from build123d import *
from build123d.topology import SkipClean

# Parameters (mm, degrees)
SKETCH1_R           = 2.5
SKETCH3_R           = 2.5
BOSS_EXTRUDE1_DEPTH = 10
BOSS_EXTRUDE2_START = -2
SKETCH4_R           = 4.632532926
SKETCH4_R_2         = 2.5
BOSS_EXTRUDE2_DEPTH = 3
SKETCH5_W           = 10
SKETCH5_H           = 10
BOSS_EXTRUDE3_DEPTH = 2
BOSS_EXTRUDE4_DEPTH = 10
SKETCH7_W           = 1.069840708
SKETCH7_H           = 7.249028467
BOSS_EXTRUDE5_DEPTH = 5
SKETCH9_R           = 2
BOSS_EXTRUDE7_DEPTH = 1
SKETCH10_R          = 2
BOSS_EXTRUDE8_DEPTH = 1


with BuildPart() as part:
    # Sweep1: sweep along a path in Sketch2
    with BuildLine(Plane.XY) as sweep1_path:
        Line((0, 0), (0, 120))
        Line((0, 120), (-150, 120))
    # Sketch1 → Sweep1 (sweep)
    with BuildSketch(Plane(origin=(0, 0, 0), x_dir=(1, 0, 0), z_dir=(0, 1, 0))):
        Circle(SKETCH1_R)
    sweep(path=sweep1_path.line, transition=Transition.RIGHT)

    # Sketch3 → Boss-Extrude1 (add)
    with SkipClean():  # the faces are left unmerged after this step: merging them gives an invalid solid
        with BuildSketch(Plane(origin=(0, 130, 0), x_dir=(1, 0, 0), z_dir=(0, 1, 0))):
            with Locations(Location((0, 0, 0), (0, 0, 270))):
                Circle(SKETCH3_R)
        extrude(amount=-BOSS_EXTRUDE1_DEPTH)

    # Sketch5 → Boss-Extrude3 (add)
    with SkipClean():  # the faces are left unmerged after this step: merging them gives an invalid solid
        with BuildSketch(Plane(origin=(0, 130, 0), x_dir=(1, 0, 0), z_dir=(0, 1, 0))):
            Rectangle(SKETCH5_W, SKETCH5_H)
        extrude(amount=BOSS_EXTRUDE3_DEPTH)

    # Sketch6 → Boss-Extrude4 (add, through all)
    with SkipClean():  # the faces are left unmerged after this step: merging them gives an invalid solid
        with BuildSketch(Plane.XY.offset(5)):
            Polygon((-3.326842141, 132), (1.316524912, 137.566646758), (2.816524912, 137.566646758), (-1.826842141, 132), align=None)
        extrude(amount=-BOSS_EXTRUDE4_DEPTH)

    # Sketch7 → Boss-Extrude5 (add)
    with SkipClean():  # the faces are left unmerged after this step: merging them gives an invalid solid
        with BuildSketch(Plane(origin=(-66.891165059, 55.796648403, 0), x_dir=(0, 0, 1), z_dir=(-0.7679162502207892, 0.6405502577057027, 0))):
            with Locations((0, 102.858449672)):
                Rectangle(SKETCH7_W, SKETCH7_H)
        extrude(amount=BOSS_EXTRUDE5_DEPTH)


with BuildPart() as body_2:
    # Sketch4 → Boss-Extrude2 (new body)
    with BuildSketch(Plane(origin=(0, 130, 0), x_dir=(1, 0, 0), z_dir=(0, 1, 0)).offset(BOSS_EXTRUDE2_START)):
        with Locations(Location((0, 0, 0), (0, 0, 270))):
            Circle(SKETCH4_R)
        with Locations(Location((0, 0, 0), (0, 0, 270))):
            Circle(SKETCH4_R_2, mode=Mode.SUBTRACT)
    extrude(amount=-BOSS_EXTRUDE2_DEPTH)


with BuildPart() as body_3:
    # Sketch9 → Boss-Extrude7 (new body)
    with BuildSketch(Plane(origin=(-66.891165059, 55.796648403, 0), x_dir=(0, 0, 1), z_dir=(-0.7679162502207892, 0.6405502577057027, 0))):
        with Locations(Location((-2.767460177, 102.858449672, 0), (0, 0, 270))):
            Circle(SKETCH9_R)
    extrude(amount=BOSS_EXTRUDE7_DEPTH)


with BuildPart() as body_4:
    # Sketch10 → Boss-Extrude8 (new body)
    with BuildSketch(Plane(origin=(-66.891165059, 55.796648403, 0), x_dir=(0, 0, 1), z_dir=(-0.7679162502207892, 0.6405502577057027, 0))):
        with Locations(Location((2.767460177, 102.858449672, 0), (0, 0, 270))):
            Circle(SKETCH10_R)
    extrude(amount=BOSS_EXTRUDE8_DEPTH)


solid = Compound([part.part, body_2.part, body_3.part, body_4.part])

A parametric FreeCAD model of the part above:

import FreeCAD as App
import Part
import Sketcher

V = App.Vector

doc = App.newDocument("Part")
params = doc.addObject("Spreadsheet::Sheet", "Params")
for row, (alias, value) in enumerate([
    ("sketch1_diameter", "5 mm"),
    ("sketch2_width", "150 mm"),
    ("sketch2_height", "120 mm"),
    ("sketch3_diameter", "5 mm"),
    ("pad1_length", "10 mm"),
    ("sketch4_width", "10 mm"),
    ("pad2_length", "2 mm"),
    ("sketch5_width", "1.5 mm"),
    ("pad3_length", "10 mm"),
    ("pad4_length", "5 mm"),
    ("sketch7_diameter", "5 mm"),
    ("pad5_length", "3 mm"),
    ("sketch8_diameter", "4 mm"),
    ("pad6_length", "1 mm"),
    ("sketch9_diameter", "4 mm"),
    ("pad7_length", "1 mm"),
], start=1):
    params.set(f"A{row}", alias)
    params.set(f"B{row}", "=" + value)
    params.setAlias(f"B{row}", alias)

body = doc.addObject("PartDesign::Body", "Body")

# Sketch on XZ plane
sketch1 = body.newObject("Sketcher::SketchObject", "Sketch")
sketch1.AttachmentSupport = (doc.getObject("XZ_Plane"), [""])
sketch1.MapMode = "FlatFace"
sketch1.addGeometry(Part.Circle(V(0, 0, 0), V(0, 0, 1), 2.5), False)
sketch1.addConstraint(Sketcher.Constraint("Coincident", 0, 3, -1, 1))
sketch1.addConstraint(Sketcher.Constraint("Diameter", 0, 5.0))
sketch1.setExpression("Constraints[1]", "Params.sketch1_diameter")

# Sketch on XY plane
sketch2 = body.newObject("Sketcher::SketchObject", "Sketch001")
sketch2.AttachmentSupport = (doc.getObject("XY_Plane"), [""])
sketch2.MapMode = "FlatFace"
sketch2.addGeometry(Part.LineSegment(V(0, 0, 0), V(0, 120, 0)), False)
sketch2.addGeometry(Part.LineSegment(V(0, 120, 0), V(-150, 120, 0)), False)
sketch2.addConstraint(Sketcher.Constraint("Coincident", 0, 2, 1, 1))
sketch2.addConstraint(Sketcher.Constraint("Vertical", 0))
sketch2.addConstraint(Sketcher.Constraint("Horizontal", 1))
sketch2.addConstraint(Sketcher.Constraint("Coincident", 0, 1, -1, 1))
sketch2.addConstraint(Sketcher.Constraint("DistanceX", 1, 2, 1, 1, 150.0))
sketch2.addConstraint(Sketcher.Constraint("DistanceY", 0, 1, 0, 2, 120.0))
sketch2.setExpression("Constraints[4]", "Params.sketch2_width")
sketch2.setExpression("Constraints[5]", "Params.sketch2_height")
doc.recompute()

additivepipe = body.newObject("PartDesign::AdditivePipe", "AdditivePipe")
additivepipe.Profile = sketch1
additivepipe.Spine = (sketch2, ["Edge1", "Edge2"])
additivepipe.Transition = "Right corner"

# Sketch on XZ plane
sketch3 = body.newObject("Sketcher::SketchObject", "Sketch002")
sketch3.AttachmentSupport = (doc.getObject("XZ_Plane"), [""])
sketch3.MapMode = "FlatFace"
sketch3.AttachmentOffset = App.Placement(V(0, 0, -130), App.Rotation())
sketch3.addGeometry(Part.Circle(V(0, 0, 0), V(0, 0, 1), 2.5), False)
sketch3.addConstraint(Sketcher.Constraint("Coincident", 0, 3, -1, 1))
sketch3.addConstraint(Sketcher.Constraint("Diameter", 0, 5.0))
sketch3.setExpression("Constraints[1]", "Params.sketch3_diameter")
pad1 = body.newObject("PartDesign::Pad", "Pad")
pad1.Profile = sketch3
pad1.setExpression("Length", "Params.pad1_length")

# Sketch on XZ plane
sketch4 = body.newObject("Sketcher::SketchObject", "Sketch003")
sketch4.AttachmentSupport = (doc.getObject("XZ_Plane"), [""])
sketch4.MapMode = "FlatFace"
sketch4.AttachmentOffset = App.Placement(V(0, 0, -130), App.Rotation())
sketch4.addGeometry(Part.LineSegment(V(-5, -5, 0), V(-5, 5, 0)), False)
sketch4.addGeometry(Part.LineSegment(V(-5, 5, 0), V(5, 5, 0)), False)
sketch4.addGeometry(Part.LineSegment(V(5, 5, 0), V(5, -5, 0)), False)
sketch4.addGeometry(Part.LineSegment(V(5, -5, 0), V(-5, -5, 0)), False)
sketch4.addConstraint(Sketcher.Constraint("Coincident", 0, 2, 1, 1))
sketch4.addConstraint(Sketcher.Constraint("Coincident", 1, 2, 2, 1))
sketch4.addConstraint(Sketcher.Constraint("Coincident", 2, 2, 3, 1))
sketch4.addConstraint(Sketcher.Constraint("Coincident", 3, 2, 0, 1))
sketch4.addConstraint(Sketcher.Constraint("Vertical", 0))
sketch4.addConstraint(Sketcher.Constraint("Horizontal", 1))
sketch4.addConstraint(Sketcher.Constraint("Vertical", 2))
sketch4.addConstraint(Sketcher.Constraint("Horizontal", 3))
sketch4.addConstraint(Sketcher.Constraint("Symmetric", 0, 2, 2, 2, -1, 1))
sketch4.addConstraint(Sketcher.Constraint("Equal", 3, 0))
sketch4.addConstraint(Sketcher.Constraint("DistanceX", 1, 1, 1, 2, 10.0))
sketch4.setExpression("Constraints[10]", "Params.sketch4_width")
pad2 = body.newObject("PartDesign::Pad", "Pad001")
pad2.Profile = sketch4
pad2.setExpression("Length", "Params.pad2_length")
pad2.Reversed = True

# Sketch on XY plane
sketch5 = body.newObject("Sketcher::SketchObject", "Sketch004")
sketch5.AttachmentSupport = (doc.getObject("XY_Plane"), [""])
sketch5.MapMode = "FlatFace"
sketch5.AttachmentOffset = App.Placement(V(0, 0, 5), App.Rotation())
sketch5.addGeometry(Part.LineSegment(V(1.316525, 137.566647, 0), V(-3.326842, 132, 0)), False)
sketch5.addGeometry(Part.LineSegment(V(-3.326842, 132, 0), V(-1.826842, 132, 0)), False)
sketch5.addGeometry(Part.LineSegment(V(-1.826842, 132, 0), V(2.816525, 137.566647, 0)), False)
sketch5.addGeometry(Part.LineSegment(V(2.816525, 137.566647, 0), V(1.316525, 137.566647, 0)), False)
sketch5.addConstraint(Sketcher.Constraint("Coincident", 0, 2, 1, 1))
sketch5.addConstraint(Sketcher.Constraint("Coincident", 1, 2, 2, 1))
sketch5.addConstraint(Sketcher.Constraint("Coincident", 2, 2, 3, 1))
sketch5.addConstraint(Sketcher.Constraint("Coincident", 3, 2, 0, 1))
sketch5.addConstraint(Sketcher.Constraint("Horizontal", 1))
sketch5.addConstraint(Sketcher.Constraint("Horizontal", 3))
sketch5.addConstraint(Sketcher.Constraint("Parallel", 0, 2))
sketch5.addConstraint(Sketcher.Constraint("DistanceX", 1, 1, 1, 2, 1.5))
sketch5.addConstraint(Sketcher.Constraint("DistanceY", -1, 1, 0, 2, 132.0))
sketch5.addConstraint(Sketcher.Constraint("Distance", 0, 7.249028))
sketch5.addConstraint(Sketcher.Constraint("DistanceX", 0, 2, -1, 1, 3.326842))
sketch5.addConstraint(Sketcher.Constraint("DistanceX", -1, 1, 2, 2, 2.816525))
sketch5.setExpression("Constraints[7]", "Params.sketch5_width")
pad3 = body.newObject("PartDesign::Pad", "Pad002")
pad3.Profile = sketch5
pad3.setExpression("Length", "Params.pad3_length")
pad3.Reversed = True

# Sketch on an angled plane
sketch6 = body.newObject("Sketcher::SketchObject", "Sketch005")
sketch6.Placement = App.Placement(V(-66.891165, 55.796648, 0), App.Rotation(V(0, 0, 1), V(0.640550258, 0.76791625, 0), V(-0.76791625, 0.640550258, 0), "ZXY"))
sketch6.addGeometry(Part.LineSegment(V(-0.53492, 106.482964, 0), V(-0.53492, 99.233935, 0)), False)
sketch6.addGeometry(Part.LineSegment(V(-0.53492, 99.233935, 0), V(0.53492, 99.233935, 0)), False)
sketch6.addGeometry(Part.LineSegment(V(0.53492, 99.233935, 0), V(0.53492, 106.482964, 0)), False)
sketch6.addGeometry(Part.LineSegment(V(0.53492, 106.482964, 0), V(-0.53492, 106.482964, 0)), False)
sketch6.addConstraint(Sketcher.Constraint("Coincident", 0, 2, 1, 1))
sketch6.addConstraint(Sketcher.Constraint("Coincident", 1, 2, 2, 1))
sketch6.addConstraint(Sketcher.Constraint("Coincident", 2, 2, 3, 1))
sketch6.addConstraint(Sketcher.Constraint("Coincident", 3, 2, 0, 1))
sketch6.addConstraint(Sketcher.Constraint("Vertical", 0))
sketch6.addConstraint(Sketcher.Constraint("Horizontal", 1))
sketch6.addConstraint(Sketcher.Constraint("Vertical", 2))
sketch6.addConstraint(Sketcher.Constraint("Horizontal", 3))
sketch6.addConstraint(Sketcher.Constraint("DistanceX", 1, 1, 1, 2, 1.069841))
sketch6.addConstraint(Sketcher.Constraint("DistanceY", 0, 2, 0, 1, 7.249028))
sketch6.addConstraint(Sketcher.Constraint("DistanceX", 0, 2, -1, 1, 0.53492))
sketch6.addConstraint(Sketcher.Constraint("DistanceY", -1, 1, 0, 2, 99.233935))
pad4 = body.newObject("PartDesign::Pad", "Pad003")
pad4.Profile = sketch6
pad4.setExpression("Length", "Params.pad4_length")
body2 = doc.addObject("PartDesign::Body", "Body001")

# Sketch on XZ plane
sketch7 = body2.newObject("Sketcher::SketchObject", "Sketch006")
sketch7.AttachmentSupport = (doc.getObject("XZ_Plane001"), [""])
sketch7.MapMode = "FlatFace"
sketch7.AttachmentOffset = App.Placement(V(0, 0, -128), App.Rotation())
sketch7.addGeometry(Part.Circle(V(0, 0, 0), V(0, 0, 1), 4.632533), False)
sketch7.addGeometry(Part.Circle(V(0, 0, 0), V(0, 0, 1), 2.5), False)
sketch7.addConstraint(Sketcher.Constraint("Coincident", 0, 3, -1, 1))
sketch7.addConstraint(Sketcher.Constraint("Coincident", 1, 3, -1, 1))
sketch7.addConstraint(Sketcher.Constraint("Diameter", 1, 5.0))
sketch7.addConstraint(Sketcher.Constraint("Diameter", 0, 9.265066))
sketch7.setExpression("Constraints[2]", "Params.sketch7_diameter")
pad5 = body2.newObject("PartDesign::Pad", "Pad004")
pad5.Profile = sketch7
pad5.setExpression("Length", "Params.pad5_length")
body3 = doc.addObject("PartDesign::Body", "Body002")

# Sketch on an angled plane
sketch8 = body3.newObject("Sketcher::SketchObject", "Sketch007")
sketch8.Placement = App.Placement(V(-66.891165, 55.796648, 0), App.Rotation(V(0, 0, 1), V(0.640550258, 0.76791625, 0), V(-0.76791625, 0.640550258, 0), "ZXY"))
sketch8.addGeometry(Part.Circle(V(-2.76746, 102.85845, 0), V(0, 0, 1), 2), False)
sketch8.addConstraint(Sketcher.Constraint("Diameter", 0, 4.0))
sketch8.addConstraint(Sketcher.Constraint("DistanceX", 0, 3, -1, 1, 2.76746))
sketch8.addConstraint(Sketcher.Constraint("DistanceY", -1, 1, 0, 3, 102.85845))
sketch8.setExpression("Constraints[0]", "Params.sketch8_diameter")
pad6 = body3.newObject("PartDesign::Pad", "Pad005")
pad6.Profile = sketch8
pad6.setExpression("Length", "Params.pad6_length")
body4 = doc.addObject("PartDesign::Body", "Body003")

# Sketch on an angled plane
sketch9 = body4.newObject("Sketcher::SketchObject", "Sketch008")
sketch9.Placement = App.Placement(V(-66.891165, 55.796648, 0), App.Rotation(V(0, 0, 1), V(0.640550258, 0.76791625, 0), V(-0.76791625, 0.640550258, 0), "ZXY"))
sketch9.addGeometry(Part.Circle(V(2.76746, 102.85845, 0), V(0, 0, 1), 2), False)
sketch9.addConstraint(Sketcher.Constraint("Diameter", 0, 4.0))
sketch9.addConstraint(Sketcher.Constraint("DistanceX", -1, 1, 0, 3, 2.76746))
sketch9.addConstraint(Sketcher.Constraint("DistanceY", -1, 1, 0, 3, 102.85845))
sketch9.setExpression("Constraints[0]", "Params.sketch9_diameter")
pad7 = body4.newObject("PartDesign::Pad", "Pad006")
pad7.Profile = sketch9
pad7.setExpression("Length", "Params.pad7_length")

doc.recompute()
